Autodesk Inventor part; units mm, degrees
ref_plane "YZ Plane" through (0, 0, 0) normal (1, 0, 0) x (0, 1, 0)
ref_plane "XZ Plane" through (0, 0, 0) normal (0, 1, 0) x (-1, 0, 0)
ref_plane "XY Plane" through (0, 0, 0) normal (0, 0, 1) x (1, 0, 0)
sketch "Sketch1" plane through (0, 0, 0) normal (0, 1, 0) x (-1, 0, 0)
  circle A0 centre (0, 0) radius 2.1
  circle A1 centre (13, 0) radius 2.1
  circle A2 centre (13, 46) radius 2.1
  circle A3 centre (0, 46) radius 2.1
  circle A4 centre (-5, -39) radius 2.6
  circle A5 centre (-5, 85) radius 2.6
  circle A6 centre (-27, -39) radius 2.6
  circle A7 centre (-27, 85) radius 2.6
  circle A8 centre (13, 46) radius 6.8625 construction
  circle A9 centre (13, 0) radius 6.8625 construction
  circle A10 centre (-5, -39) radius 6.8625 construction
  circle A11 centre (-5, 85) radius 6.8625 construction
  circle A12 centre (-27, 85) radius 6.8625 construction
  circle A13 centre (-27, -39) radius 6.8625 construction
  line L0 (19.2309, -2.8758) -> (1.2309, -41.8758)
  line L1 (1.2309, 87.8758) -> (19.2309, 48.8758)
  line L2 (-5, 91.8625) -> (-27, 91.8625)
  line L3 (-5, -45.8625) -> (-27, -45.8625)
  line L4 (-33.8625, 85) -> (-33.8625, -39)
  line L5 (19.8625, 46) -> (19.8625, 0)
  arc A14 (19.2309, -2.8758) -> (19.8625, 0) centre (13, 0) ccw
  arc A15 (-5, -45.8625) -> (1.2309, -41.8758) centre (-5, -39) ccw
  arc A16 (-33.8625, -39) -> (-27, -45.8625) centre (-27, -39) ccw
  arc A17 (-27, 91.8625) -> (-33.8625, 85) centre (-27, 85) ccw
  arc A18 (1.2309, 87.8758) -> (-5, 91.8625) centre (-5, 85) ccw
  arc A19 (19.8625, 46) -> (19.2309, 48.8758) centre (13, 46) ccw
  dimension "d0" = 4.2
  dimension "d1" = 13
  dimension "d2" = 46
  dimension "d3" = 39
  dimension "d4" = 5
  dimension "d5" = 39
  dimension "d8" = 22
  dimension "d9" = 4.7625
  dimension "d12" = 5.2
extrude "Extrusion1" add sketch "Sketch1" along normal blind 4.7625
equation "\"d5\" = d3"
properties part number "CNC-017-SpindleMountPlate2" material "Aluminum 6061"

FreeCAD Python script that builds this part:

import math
import FreeCAD as App
import Part
import Sketcher

doc = App.newDocument("Part")
body = doc.addObject("PartDesign::Body", "Body")

# Sketch on XZ plane
sketch1 = body.newObject("Sketcher::SketchObject", "Sketch")
sketch1.AttachmentSupport = (doc.getObject("XZ_Plane"), [""])
sketch1.MapMode = "FlatFace"
sketch1.addGeometry([
    Part.LineSegment(App.Vector(-1.2309, -41.8758, 0), App.Vector(-19.2309, -2.8758, 0)),  # 0
    Part.ArcOfCircle(Part.Circle(App.Vector(-13, 0, 0), App.Vector(0, 0, 1), 6.8625), math.radians(180), math.radians(204.775141)),  # 1
    Part.LineSegment(App.Vector(-19.8625, 0, 0), App.Vector(-19.8625, 46, 0)),  # 2
    Part.ArcOfCircle(Part.Circle(App.Vector(-13, 46, 0), App.Vector(0, 0, 1), 6.8625), math.radians(155.224859), math.radians(180)),  # 3
    Part.LineSegment(App.Vector(-19.2309, 48.8758, 0), App.Vector(-1.2309, 87.8758, 0)),  # 4
    Part.ArcOfCircle(Part.Circle(App.Vector(5, 85, 0), App.Vector(0, 0, 1), 6.8625), math.radians(90), math.radians(155.224859)),  # 5
    Part.LineSegment(App.Vector(5, 91.8625, 0), App.Vector(27, 91.8625, 0)),  # 6
    Part.ArcOfCircle(Part.Circle(App.Vector(27, 85, 0), App.Vector(0, 0, 1), 6.8625), math.radians(0), math.radians(90)),  # 7
    Part.LineSegment(App.Vector(33.8625, 85, 0), App.Vector(33.8625, -39, 0)),  # 8
    Part.ArcOfCircle(Part.Circle(App.Vector(27, -39, 0), App.Vector(0, 0, 1), 6.8625), math.radians(-90), math.radians(0)),  # 9
    Part.LineSegment(App.Vector(27, -45.8625, 0), App.Vector(5, -45.8625, 0)),  # 10
    Part.ArcOfCircle(Part.Circle(App.Vector(5, -39, 0), App.Vector(0, 0, 1), 6.8625), math.radians(-155.224859), math.radians(-90)),  # 11
    Part.Circle(App.Vector(27, -39, 0), App.Vector(0, 0, 1), 2.6),  # 12
    Part.Circle(App.Vector(5, -39, 0), App.Vector(0, 0, 1), 2.6),  # 13
    Part.Circle(App.Vector(0, 0, 0), App.Vector(0, 0, 1), 2.1),  # 14
    Part.Circle(App.Vector(-13, 0, 0), App.Vector(0, 0, 1), 2.1),  # 15
    Part.Circle(App.Vector(27, 85, 0), App.Vector(0, 0, 1), 2.6),  # 16
    Part.Circle(App.Vector(0, 46, 0), App.Vector(0, 0, 1), 2.1),  # 17
    Part.Circle(App.Vector(-13, 46, 0), App.Vector(0, 0, 1), 2.1),  # 18
    Part.Circle(App.Vector(5, 85, 0), App.Vector(0, 0, 1), 2.6),  # 19
], False)
sketch1.addConstraint([
    Sketcher.Constraint("Tangent", 0, 2, 1, 2),
    Sketcher.Constraint("Tangent", 1, 1, 2, 1),
    Sketcher.Constraint("Tangent", 2, 2, 3, 2),
    Sketcher.Constraint("Tangent", 3, 1, 4, 1),
    Sketcher.Constraint("Tangent", 4, 2, 5, 2),
    Sketcher.Constraint("Tangent", 5, 1, 6, 1),
    Sketcher.Constraint("Tangent", 6, 2, 7, 2),
    Sketcher.Constraint("Tangent", 7, 1, 8, 1),
    Sketcher.Constraint("Tangent", 8, 2, 9, 2),
    Sketcher.Constraint("Tangent", 9, 1, 10, 1),
    Sketcher.Constraint("Tangent", 10, 2, 11, 2),
    Sketcher.Constraint("Tangent", 11, 1, 0, 1),
    Sketcher.Constraint("Vertical", 2),
    Sketcher.Constraint("Horizontal", 6),
    Sketcher.Constraint("Vertical", 8),
    Sketcher.Constraint("Horizontal", 10),
    Sketcher.Constraint("Coincident", 14, 3, -1, 1),
    Sketcher.Constraint("Coincident", 12, 3, 9, 3),
    Sketcher.Constraint("Coincident", 13, 3, 11, 3),
    Sketcher.Constraint("Coincident", 15, 3, 1, 3),
    Sketcher.Constraint("Coincident", 16, 3, 7, 3),
    Sketcher.Constraint("Coincident", 18, 3, 3, 3),
    Sketcher.Constraint("Coincident", 19, 3, 5, 3),
    Sketcher.Constraint("Equal", 1, 3),
    Sketcher.Constraint("Equal", 3, 5),
    Sketcher.Constraint("Equal", 5, 7),
    Sketcher.Constraint("Equal", 7, 9),
    Sketcher.Constraint("Equal", 9, 11),
    Sketcher.Constraint("Equal", 12, 13),
    Sketcher.Constraint("Equal", 14, 15),
    Sketcher.Constraint("Equal", 13, 16),
    Sketcher.Constraint("Equal", 15, 17),
    Sketcher.Constraint("Equal", 17, 18),
    Sketcher.Constraint("Equal", 16, 19),
    Sketcher.Constraint("PointOnObject", 1, 3, -1),
    Sketcher.Constraint("PointOnObject", 17, 3, -2),
    Sketcher.Constraint("Horizontal", 3, 3, 17, 3),
    Sketcher.Constraint("Vertical", 5, 3, 11, 3),
    Sketcher.Constraint("Vertical", 0, 2, 3, 1),
    Sketcher.Constraint("Diameter", 12, 5.2),
    Sketcher.Constraint("Diameter", 14, 4.2),
    Sketcher.Constraint("DistanceX", 6, 1, 6, 2, 22.0),
    Sketcher.Constraint("DistanceY", 2, 1, 2, 2, 46.0),
    Sketcher.Constraint("DistanceX", 1, 3, -1, 1, 13.0),
    Sketcher.Constraint("DistanceX", -1, 1, 5, 3, 5.0),
    Sketcher.Constraint("DistanceY", 9, 3, -1, 1, 39.0),
    Sketcher.Constraint("Radius", 1, 6.8625),
])
pad1 = body.newObject("PartDesign::Pad", "Pad")
pad1.Profile = sketch1
pad1.Length = 4.7625
pad1.Reversed = True

doc.recompute()
